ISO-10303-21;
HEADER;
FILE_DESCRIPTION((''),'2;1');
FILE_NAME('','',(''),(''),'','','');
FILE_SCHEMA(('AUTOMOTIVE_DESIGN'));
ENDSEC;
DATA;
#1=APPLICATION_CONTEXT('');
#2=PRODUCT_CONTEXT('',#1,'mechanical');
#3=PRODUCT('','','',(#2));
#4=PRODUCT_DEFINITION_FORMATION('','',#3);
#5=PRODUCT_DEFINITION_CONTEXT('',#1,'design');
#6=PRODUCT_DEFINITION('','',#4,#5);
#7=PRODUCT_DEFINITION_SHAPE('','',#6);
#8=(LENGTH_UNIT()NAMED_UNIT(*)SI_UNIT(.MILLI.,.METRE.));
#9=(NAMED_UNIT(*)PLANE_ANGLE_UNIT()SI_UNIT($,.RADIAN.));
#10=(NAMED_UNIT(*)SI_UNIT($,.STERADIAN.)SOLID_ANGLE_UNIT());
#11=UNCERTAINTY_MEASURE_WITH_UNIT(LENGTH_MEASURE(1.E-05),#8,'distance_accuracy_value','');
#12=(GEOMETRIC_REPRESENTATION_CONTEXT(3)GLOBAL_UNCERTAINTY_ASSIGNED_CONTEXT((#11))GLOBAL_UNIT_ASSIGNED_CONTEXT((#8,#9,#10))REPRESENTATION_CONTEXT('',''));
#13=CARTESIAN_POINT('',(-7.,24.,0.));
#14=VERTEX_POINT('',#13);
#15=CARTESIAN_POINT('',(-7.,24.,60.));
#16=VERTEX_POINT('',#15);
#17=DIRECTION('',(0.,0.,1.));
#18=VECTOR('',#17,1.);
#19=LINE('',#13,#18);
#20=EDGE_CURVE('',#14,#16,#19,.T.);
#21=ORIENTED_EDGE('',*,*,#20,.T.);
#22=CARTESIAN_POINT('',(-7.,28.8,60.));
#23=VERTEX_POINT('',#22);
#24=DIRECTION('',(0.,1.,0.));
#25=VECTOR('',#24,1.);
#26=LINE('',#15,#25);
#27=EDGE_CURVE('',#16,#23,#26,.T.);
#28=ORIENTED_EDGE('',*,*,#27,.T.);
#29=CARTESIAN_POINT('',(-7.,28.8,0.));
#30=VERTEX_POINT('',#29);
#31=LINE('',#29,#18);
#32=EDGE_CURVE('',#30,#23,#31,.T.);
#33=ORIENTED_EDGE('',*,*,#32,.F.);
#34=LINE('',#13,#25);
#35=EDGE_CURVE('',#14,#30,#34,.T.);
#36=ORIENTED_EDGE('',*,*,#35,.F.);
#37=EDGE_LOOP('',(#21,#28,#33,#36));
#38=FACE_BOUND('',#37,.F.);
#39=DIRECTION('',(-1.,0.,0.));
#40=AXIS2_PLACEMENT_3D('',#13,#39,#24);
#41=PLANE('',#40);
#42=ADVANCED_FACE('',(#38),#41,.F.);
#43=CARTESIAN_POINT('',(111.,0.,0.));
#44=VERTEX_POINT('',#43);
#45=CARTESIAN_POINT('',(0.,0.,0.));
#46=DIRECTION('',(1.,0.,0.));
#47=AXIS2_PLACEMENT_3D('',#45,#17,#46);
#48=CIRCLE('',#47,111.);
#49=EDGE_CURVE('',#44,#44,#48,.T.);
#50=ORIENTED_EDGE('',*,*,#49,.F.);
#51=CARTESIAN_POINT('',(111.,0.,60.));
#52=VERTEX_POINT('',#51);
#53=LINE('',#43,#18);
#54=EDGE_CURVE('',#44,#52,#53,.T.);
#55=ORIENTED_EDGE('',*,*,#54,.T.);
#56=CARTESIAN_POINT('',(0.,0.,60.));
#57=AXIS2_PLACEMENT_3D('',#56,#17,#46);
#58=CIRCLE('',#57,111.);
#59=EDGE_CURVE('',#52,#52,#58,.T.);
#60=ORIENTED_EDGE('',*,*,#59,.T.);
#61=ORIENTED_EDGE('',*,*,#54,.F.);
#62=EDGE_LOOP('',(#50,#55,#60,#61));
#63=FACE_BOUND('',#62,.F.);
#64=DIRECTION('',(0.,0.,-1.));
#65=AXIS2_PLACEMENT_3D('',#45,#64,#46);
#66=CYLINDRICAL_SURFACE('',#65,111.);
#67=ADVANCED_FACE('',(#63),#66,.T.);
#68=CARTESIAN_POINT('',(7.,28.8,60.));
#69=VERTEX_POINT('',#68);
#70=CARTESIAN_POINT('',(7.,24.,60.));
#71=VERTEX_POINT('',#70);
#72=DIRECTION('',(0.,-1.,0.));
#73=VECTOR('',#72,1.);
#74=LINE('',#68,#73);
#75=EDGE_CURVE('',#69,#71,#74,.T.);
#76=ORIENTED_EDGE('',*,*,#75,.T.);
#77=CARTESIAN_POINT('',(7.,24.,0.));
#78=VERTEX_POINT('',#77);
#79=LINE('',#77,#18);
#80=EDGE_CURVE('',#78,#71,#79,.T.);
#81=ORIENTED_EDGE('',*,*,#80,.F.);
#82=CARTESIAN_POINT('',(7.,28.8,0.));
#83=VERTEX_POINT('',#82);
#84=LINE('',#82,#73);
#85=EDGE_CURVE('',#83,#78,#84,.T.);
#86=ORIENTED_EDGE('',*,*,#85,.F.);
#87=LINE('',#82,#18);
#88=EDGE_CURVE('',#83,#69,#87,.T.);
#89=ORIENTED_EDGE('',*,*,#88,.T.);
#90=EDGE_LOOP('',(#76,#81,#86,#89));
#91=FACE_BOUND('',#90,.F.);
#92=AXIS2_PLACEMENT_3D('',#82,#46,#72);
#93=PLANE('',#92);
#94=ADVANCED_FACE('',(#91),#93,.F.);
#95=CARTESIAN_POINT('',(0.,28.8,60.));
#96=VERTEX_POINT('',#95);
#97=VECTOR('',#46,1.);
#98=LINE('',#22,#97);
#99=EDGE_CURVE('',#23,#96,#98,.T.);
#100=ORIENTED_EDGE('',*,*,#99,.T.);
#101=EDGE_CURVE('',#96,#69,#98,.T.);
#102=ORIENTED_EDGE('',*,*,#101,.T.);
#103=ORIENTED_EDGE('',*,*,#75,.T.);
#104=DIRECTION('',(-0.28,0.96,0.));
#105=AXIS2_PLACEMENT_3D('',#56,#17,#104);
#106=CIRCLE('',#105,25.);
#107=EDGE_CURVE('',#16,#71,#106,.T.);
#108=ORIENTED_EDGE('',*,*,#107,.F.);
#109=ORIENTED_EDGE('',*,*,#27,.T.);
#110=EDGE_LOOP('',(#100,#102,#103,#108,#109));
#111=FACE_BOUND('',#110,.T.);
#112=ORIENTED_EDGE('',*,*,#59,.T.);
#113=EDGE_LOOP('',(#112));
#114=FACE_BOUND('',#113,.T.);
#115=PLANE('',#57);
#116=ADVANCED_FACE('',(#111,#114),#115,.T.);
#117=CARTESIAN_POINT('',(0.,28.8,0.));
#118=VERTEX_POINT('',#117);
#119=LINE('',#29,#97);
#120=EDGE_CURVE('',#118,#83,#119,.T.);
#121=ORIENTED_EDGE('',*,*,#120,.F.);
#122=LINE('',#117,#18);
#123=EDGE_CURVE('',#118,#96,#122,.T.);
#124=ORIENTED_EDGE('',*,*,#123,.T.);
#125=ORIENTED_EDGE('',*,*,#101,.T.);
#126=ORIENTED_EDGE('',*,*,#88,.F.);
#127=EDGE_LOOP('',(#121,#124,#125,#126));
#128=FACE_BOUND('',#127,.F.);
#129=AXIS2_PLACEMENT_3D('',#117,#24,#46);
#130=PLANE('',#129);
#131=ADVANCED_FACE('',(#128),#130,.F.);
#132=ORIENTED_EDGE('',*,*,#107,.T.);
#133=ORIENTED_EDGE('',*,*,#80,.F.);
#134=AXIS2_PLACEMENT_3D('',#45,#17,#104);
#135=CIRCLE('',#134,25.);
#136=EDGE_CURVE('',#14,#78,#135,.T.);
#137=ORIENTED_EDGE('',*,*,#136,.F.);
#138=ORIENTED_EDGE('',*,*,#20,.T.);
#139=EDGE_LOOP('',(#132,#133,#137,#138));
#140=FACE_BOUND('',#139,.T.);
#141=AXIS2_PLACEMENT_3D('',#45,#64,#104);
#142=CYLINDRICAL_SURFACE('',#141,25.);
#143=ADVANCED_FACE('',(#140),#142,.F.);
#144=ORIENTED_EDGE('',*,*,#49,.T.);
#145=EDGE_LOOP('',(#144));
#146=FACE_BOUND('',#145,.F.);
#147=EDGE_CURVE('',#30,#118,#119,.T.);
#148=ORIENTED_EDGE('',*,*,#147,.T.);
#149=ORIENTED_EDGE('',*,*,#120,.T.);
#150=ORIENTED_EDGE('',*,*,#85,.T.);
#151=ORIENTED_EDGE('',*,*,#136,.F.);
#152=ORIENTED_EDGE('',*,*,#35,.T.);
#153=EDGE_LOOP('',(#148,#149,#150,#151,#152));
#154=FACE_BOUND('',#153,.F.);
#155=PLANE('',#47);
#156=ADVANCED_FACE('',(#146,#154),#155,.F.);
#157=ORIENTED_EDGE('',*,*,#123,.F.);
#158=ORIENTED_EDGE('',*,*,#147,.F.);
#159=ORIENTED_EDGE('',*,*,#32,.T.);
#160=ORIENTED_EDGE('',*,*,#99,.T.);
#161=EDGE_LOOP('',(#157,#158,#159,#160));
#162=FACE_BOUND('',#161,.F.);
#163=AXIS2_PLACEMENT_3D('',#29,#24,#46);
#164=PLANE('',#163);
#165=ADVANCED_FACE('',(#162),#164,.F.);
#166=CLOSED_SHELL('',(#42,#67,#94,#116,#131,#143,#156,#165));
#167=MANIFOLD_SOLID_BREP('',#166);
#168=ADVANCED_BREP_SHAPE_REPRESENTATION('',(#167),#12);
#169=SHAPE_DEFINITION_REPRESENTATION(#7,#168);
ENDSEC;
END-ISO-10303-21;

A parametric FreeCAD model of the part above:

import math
import FreeCAD as App
import Part
import Sketcher

V = App.Vector
Q = App.Units.Quantity

doc = App.newDocument("Part")
body = doc.addObject("PartDesign::Body", "Body")

# Sketch on XY plane
sketch1 = body.newObject("Sketcher::SketchObject", "Sketch")
sketch1.AttachmentSupport = (doc.getObject("XY_Plane"), [""])
sketch1.MapMode = "FlatFace"
sketch1.addGeometry([
    Part.Circle(V(0, 0, 0), V(0, 0, 1), 111),  # 0
    Part.ArcOfCircle(Part.Circle(V(0, 0, 0), V(0, 0, 1), 25), math.radians(106), math.radians(434)),  # 1
    Part.LineSegment(V(-7, 24, 0), V(-7, 28.8, 0)),  # 2
    Part.LineSegment(V(-7, 28.8, 0), V(7, 28.8, 0)),  # 3
    Part.LineSegment(V(7, 28.8, 0), V(7, 24, 0)),  # 4
], False)
sketch1.addConstraint([
    Sketcher.Constraint("Coincident", 1, 1, 2, 1),
    Sketcher.Constraint("Coincident", 2, 2, 3, 1),
    Sketcher.Constraint("Coincident", 3, 2, 4, 1),
    Sketcher.Constraint("Coincident", 4, 2, 1, 2),
    Sketcher.Constraint("Vertical", 2),
    Sketcher.Constraint("Horizontal", 3),
    Sketcher.Constraint("Vertical", 4),
    Sketcher.Constraint("Coincident", 0, 3, -1, 1),
    Sketcher.Constraint("Coincident", 1, 3, -1, 1),
    Sketcher.Constraint("Horizontal", 1, 1, 4, 2),
    Sketcher.Constraint("Diameter", 0, Q("222 mm")),
    Sketcher.Constraint("Radius", 1, Q("25 mm")),
    Sketcher.Constraint("DistanceX", 3, 1, 3, 2, Q("14 mm")),
    Sketcher.Constraint("DistanceY", 2, 1, 2, 2, Q("4.8 mm")),
])
pad1 = body.newObject("PartDesign::Pad", "Pad")
pad1.Profile = sketch1
pad1.Length = 60

doc.recompute()
